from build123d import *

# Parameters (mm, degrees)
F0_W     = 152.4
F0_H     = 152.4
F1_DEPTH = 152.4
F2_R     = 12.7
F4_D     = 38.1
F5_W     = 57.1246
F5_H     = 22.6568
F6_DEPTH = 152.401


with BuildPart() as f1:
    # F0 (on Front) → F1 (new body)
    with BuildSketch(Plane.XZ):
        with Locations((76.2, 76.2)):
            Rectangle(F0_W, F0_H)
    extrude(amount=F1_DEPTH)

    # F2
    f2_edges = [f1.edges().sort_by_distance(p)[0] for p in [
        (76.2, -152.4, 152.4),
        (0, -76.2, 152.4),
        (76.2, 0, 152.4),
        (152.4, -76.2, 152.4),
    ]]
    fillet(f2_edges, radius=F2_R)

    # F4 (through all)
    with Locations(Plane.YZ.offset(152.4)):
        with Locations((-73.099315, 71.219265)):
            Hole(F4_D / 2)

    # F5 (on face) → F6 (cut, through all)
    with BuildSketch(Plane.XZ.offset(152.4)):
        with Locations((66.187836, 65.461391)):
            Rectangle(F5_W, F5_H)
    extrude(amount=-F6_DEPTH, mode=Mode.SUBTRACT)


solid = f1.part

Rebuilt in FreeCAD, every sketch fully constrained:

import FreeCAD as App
import Part
import Sketcher
from FreeCAD import Vector
Q = App.Units.Quantity


def edges_at(feature, points):
    """Names of the edges that pass closest to the given points."""
    edges = feature.Shape.Edges
    near = lambda p: min(range(len(edges)), key=lambda i: edges[i].distToShape(Part.Vertex(*p))[0])
    return sorted({f"Edge{near(p) + 1}" for p in points})


def add_polygon(sketch, points):
    """Adds a closed chain of lines whose ends are joined by coincident constraints."""
    first, n = sketch.GeometryCount, len(points)
    for a, b in zip(points, points[1:] + points[:1]):
        sketch.addGeometry(Part.LineSegment(App.Vector(*a, 0), App.Vector(*b, 0)), False)
    for i in range(n):
        sketch.addConstraint(Sketcher.Constraint("Coincident", first + i, 2, first + (i + 1) % n, 1))

doc = App.newDocument("Part")
body = doc.addObject("PartDesign::Body", "Body")

sketch1 = body.newObject("Sketcher::SketchObject", "Sketch")
sketch1.AttachmentSupport = (doc.getObject("XZ_Plane"), [""])
sketch1.MapMode = "FlatFace"
add_polygon(sketch1, [(0, 152), (0, 0), (152, 0), (152, 152)])
sketch1.addConstraint(Sketcher.Constraint("Vertical", 0))
sketch1.addConstraint(Sketcher.Constraint("Horizontal", 1))
sketch1.addConstraint(Sketcher.Constraint("Vertical", 2))
sketch1.addConstraint(Sketcher.Constraint("Horizontal", 3))
sketch1.addConstraint(Sketcher.Constraint("Coincident", 0, 2, -1, 1))
sketch1.addConstraint(Sketcher.Constraint("Equal", 3, 0))
sketch1.addConstraint(Sketcher.Constraint("DistanceX", 1, 1, 1, 2, Q("6 in")))
pad1 = body.newObject("PartDesign::Pad", "Pad")
pad1.Profile = sketch1
pad1.Length = Q("6 in")
doc.recompute()

fillet = body.newObject("PartDesign::Fillet", "Fillet")
fillet.Base = (pad1, edges_at(pad1, [
    (76.2, -152.4, 152.4),
    (0, -76.2, 152.4),
    (76.2, 0, 152.4),
    (152.4, -76.2, 152.4),
]))
fillet.Radius = Q("0.5 in")

sketch2 = body.newObject("Sketcher::SketchObject", "Sketch001")
sketch2.AttachmentSupport = (doc.getObject("YZ_Plane"), [""])
sketch2.MapMode = "FlatFace"
sketch2.AttachmentOffset = App.Placement(Vector(0, 0, 6 * 25.4), App.Rotation())
sketch2.addGeometry(Part.Circle(Vector(-73, 71, 0), Vector(0, 0, 1), 19), False)
sketch2.addConstraint(Sketcher.Constraint("Diameter", 0, Q("1.5 in")))
sketch2.addConstraint(Sketcher.Constraint("DistanceX", 0, 3, -1, 1, 73.099315))
sketch2.addConstraint(Sketcher.Constraint("DistanceY", -1, 1, 0, 3, 71.219265))
doc.recompute()
hole = body.newObject("PartDesign::Hole", "Hole")
hole.Profile = sketch2
hole.ThreadType = "None"
hole.Diameter = Q("1.5 in")
hole.DepthType = "ThroughAll"

sketch3 = body.newObject("Sketcher::SketchObject", "Sketch002")
sketch3.AttachmentSupport = (doc.getObject("XZ_Plane"), [""])
sketch3.MapMode = "FlatFace"
sketch3.AttachmentOffset = App.Placement(Vector(0, 0, 6 * 25.4), App.Rotation())
add_polygon(sketch3, [(38, 77), (38, 54), (95, 54), (95, 77)])
sketch3.addConstraint(Sketcher.Constraint("Vertical", 0))
sketch3.addConstraint(Sketcher.Constraint("Horizontal", 1))
sketch3.addConstraint(Sketcher.Constraint("Vertical", 2))
sketch3.addConstraint(Sketcher.Constraint("Horizontal", 3))
sketch3.addConstraint(Sketcher.Constraint("DistanceX", 1, 1, 1, 2, Q("2.249 in")))
sketch3.addConstraint(Sketcher.Constraint("DistanceY", 0, 2, 0, 1, Q("0.892 in")))
sketch3.addConstraint(Sketcher.Constraint("DistanceY", -1, 1, 0, 2, 54.132991))
sketch3.addConstraint(Sketcher.Constraint("DistanceX", -1, 1, 0, 2, 37.625536))
pocket1 = body.newObject("PartDesign::Pocket", "Pocket")
pocket1.Profile = sketch3
pocket1.Type = "ThroughAll"

doc.recompute()
